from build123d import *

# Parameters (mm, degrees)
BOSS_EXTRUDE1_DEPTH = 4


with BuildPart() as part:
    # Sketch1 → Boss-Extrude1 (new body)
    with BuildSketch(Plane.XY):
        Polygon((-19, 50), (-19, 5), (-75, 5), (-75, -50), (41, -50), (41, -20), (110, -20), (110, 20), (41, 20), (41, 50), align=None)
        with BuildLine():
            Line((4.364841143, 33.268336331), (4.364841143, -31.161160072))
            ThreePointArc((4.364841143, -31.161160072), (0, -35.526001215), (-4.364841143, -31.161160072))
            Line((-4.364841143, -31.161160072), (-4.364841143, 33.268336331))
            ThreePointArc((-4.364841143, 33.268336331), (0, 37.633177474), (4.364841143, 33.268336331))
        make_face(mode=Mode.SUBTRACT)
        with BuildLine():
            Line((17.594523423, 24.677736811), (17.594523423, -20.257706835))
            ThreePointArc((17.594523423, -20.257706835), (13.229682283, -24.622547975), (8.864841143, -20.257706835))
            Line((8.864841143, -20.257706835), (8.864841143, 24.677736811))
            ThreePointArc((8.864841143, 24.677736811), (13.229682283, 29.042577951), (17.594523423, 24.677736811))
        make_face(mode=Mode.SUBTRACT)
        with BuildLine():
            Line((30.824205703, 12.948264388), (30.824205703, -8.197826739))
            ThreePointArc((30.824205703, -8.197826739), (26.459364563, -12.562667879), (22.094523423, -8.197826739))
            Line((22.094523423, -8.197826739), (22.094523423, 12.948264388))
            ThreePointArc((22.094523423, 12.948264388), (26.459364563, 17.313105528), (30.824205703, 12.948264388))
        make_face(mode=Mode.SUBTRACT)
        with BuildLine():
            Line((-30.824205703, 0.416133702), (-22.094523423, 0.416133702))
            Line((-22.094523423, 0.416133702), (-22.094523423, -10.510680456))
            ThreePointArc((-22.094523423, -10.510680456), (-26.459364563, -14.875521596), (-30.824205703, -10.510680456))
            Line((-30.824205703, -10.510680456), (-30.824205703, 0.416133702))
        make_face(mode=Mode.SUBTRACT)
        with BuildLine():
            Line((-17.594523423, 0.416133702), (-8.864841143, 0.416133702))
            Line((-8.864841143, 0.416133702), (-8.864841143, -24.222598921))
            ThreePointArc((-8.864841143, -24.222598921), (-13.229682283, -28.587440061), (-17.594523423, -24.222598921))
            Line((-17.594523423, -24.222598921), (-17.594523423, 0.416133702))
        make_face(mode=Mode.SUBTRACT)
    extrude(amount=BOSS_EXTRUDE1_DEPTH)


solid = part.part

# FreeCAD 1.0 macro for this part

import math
import FreeCAD as App
import Part
import Sketcher
from FreeCAD import Vector


def add_polygon(sketch, points):
    """Adds a closed chain of lines whose ends are joined by coincident constraints."""
    first, n = sketch.GeometryCount, len(points)
    for a, b in zip(points, points[1:] + points[:1]):
        sketch.addGeometry(Part.LineSegment(App.Vector(*a, 0), App.Vector(*b, 0)), False)
    for i in range(n):
        sketch.addConstraint(Sketcher.Constraint("Coincident", first + i, 2, first + (i + 1) % n, 1))

doc = App.newDocument("Part")
params = doc.addObject("Spreadsheet::Sheet", "Params")
for row, (alias, value) in enumerate([
    ("sketch1_width", "56 mm"),
    ("sketch1_width2", "116 mm"),
    ("sketch1_width3", "69 mm"),
    ("sketch1_height", "45 mm"),
    ("sketch1_height2", "55 mm"),
    ("pad1_length", "4 mm"),
], start=1):
    params.set(f"A{row}", alias)
    params.set(f"B{row}", "=" + value)
    params.setAlias(f"B{row}", alias)

body = doc.addObject("PartDesign::Body", "Body")

# Sketch on XY plane
sketch1 = doc.addObject("Sketcher::SketchObject", "Sketch")
body.addObject(sketch1)
sketch1.AttachmentSupport = (doc.XY_Plane, [""])
sketch1.MapMode = "FlatFace"
add_polygon(sketch1, [(-19, 50), (-19, 5), (-75, 5), (-75, -50), (41, -50), (41, -20), (110, -20), (110, 20), (41, 20), (41, 50)])  # lines 0-9
sketch1.addGeometry(Part.LineSegment(Vector(-30.8, -10.5, 0), Vector(-30.8, 0.4, 0)), False)  # 10
sketch1.addGeometry(Part.LineSegment(Vector(-30.8, 0.4, 0), Vector(-22.1, 0.4, 0)), False)  # 11
sketch1.addGeometry(Part.LineSegment(Vector(-22.1, 0.4, 0), Vector(-22.1, -10.5, 0)), False)  # 12
sketch1.addGeometry(Part.ArcOfCircle(Part.Circle(Vector(-26.5, -10.5, 0), Vector(0, 0, 1), 4.4), math.radians(180), math.radians(360)), False)  # 13
sketch1.addGeometry(Part.LineSegment(Vector(-17.6, -24.2, 0), Vector(-17.6, 0.4, 0)), False)  # 14
sketch1.addGeometry(Part.LineSegment(Vector(-17.6, 0.4, 0), Vector(-8.9, 0.4, 0)), False)  # 15
sketch1.addGeometry(Part.LineSegment(Vector(-8.9, 0.4, 0), Vector(-8.9, -24.2, 0)), False)  # 16
sketch1.addGeometry(Part.ArcOfCircle(Part.Circle(Vector(-13.2, -24.2, 0), Vector(0, 0, 1), 4.4), math.radians(180), math.radians(360)), False)  # 17
sketch1.addGeometry(Part.ArcOfCircle(Part.Circle(Vector(0, 33.3, 0), Vector(0, 0, 1), 4.4), math.radians(0), math.radians(180)), False)  # 18
sketch1.addGeometry(Part.LineSegment(Vector(4.4, 33.3, 0), Vector(4.4, -31.2, 0)), False)  # 19
sketch1.addGeometry(Part.ArcOfCircle(Part.Circle(Vector(0, -31.2, 0), Vector(0, 0, 1), 4.4), math.radians(180), math.radians(360)), False)  # 20
sketch1.addGeometry(Part.LineSegment(Vector(-4.4, -31.2, 0), Vector(-4.4, 33.3, 0)), False)  # 21
sketch1.addGeometry(Part.ArcOfCircle(Part.Circle(Vector(13.2, 24.7, 0), Vector(0, 0, 1), 4.4), math.radians(0), math.radians(180)), False)  # 22
sketch1.addGeometry(Part.LineSegment(Vector(17.6, 24.7, 0), Vector(17.6, -20.3, 0)), False)  # 23
sketch1.addGeometry(Part.ArcOfCircle(Part.Circle(Vector(13.2, -20.3, 0), Vector(0, 0, 1), 4.4), math.radians(180), math.radians(360)), False)  # 24
sketch1.addGeometry(Part.LineSegment(Vector(8.9, -20.3, 0), Vector(8.9, 24.7, 0)), False)  # 25
sketch1.addGeometry(Part.ArcOfCircle(Part.Circle(Vector(26.5, 12.9, 0), Vector(0, 0, 1), 4.4), math.radians(0), math.radians(180)), False)  # 26
sketch1.addGeometry(Part.LineSegment(Vector(30.8, 12.9, 0), Vector(30.8, -8.2, 0)), False)  # 27
sketch1.addGeometry(Part.ArcOfCircle(Part.Circle(Vector(26.5, -8.2, 0), Vector(0, 0, 1), 4.4), math.radians(180), math.radians(360)), False)  # 28
sketch1.addGeometry(Part.LineSegment(Vector(22.1, -8.2, 0), Vector(22.1, 12.9, 0)), False)  # 29
sketch1.addConstraint(Sketcher.Constraint("Coincident", 10, 2, 11, 1))
sketch1.addConstraint(Sketcher.Constraint("Coincident", 11, 2, 12, 1))
sketch1.addConstraint(Sketcher.Constraint("Tangent", 12, 2, 13, 2))
sketch1.addConstraint(Sketcher.Constraint("Tangent", 13, 1, 10, 1))
sketch1.addConstraint(Sketcher.Constraint("Coincident", 14, 2, 15, 1))
sketch1.addConstraint(Sketcher.Constraint("Coincident", 15, 2, 16, 1))
sketch1.addConstraint(Sketcher.Constraint("Tangent", 16, 2, 17, 2))
sketch1.addConstraint(Sketcher.Constraint("Tangent", 17, 1, 14, 1))
sketch1.addConstraint(Sketcher.Constraint("Tangent", 18, 1, 19, 1))
sketch1.addConstraint(Sketcher.Constraint("Tangent", 19, 2, 20, 2))
sketch1.addConstraint(Sketcher.Constraint("Tangent", 20, 1, 21, 1))
sketch1.addConstraint(Sketcher.Constraint("Tangent", 21, 2, 18, 2))
sketch1.addConstraint(Sketcher.Constraint("Tangent", 22, 1, 23, 1))
sketch1.addConstraint(Sketcher.Constraint("Tangent", 23, 2, 24, 2))
sketch1.addConstraint(Sketcher.Constraint("Tangent", 24, 1, 25, 1))
sketch1.addConstraint(Sketcher.Constraint("Tangent", 25, 2, 22, 2))
sketch1.addConstraint(Sketcher.Constraint("Tangent", 26, 1, 27, 1))
sketch1.addConstraint(Sketcher.Constraint("Tangent", 27, 2, 28, 2))
sketch1.addConstraint(Sketcher.Constraint("Tangent", 28, 1, 29, 1))
sketch1.addConstraint(Sketcher.Constraint("Tangent", 29, 2, 26, 2))
sketch1.addConstraint(Sketcher.Constraint("Vertical", 0))
sketch1.addConstraint(Sketcher.Constraint("Horizontal", 1))
sketch1.addConstraint(Sketcher.Constraint("Vertical", 2))
sketch1.addConstraint(Sketcher.Constraint("Horizontal", 3))
sketch1.addConstraint(Sketcher.Constraint("Vertical", 4))
sketch1.addConstraint(Sketcher.Constraint("Horizontal", 5))
sketch1.addConstraint(Sketcher.Constraint("Vertical", 6))
sketch1.addConstraint(Sketcher.Constraint("Horizontal", 7))
sketch1.addConstraint(Sketcher.Constraint("Vertical", 8))
sketch1.addConstraint(Sketcher.Constraint("Horizontal", 9))
sketch1.addConstraint(Sketcher.Constraint("Vertical", 10))
sketch1.addConstraint(Sketcher.Constraint("Horizontal", 11))
sketch1.addConstraint(Sketcher.Constraint("Vertical", 12))
sketch1.addConstraint(Sketcher.Constraint("Vertical", 14))
sketch1.addConstraint(Sketcher.Constraint("Horizontal", 15))
sketch1.addConstraint(Sketcher.Constraint("Vertical", 16))
sketch1.addConstraint(Sketcher.Constraint("Vertical", 19))
sketch1.addConstraint(Sketcher.Constraint("Vertical", 21))
sketch1.addConstraint(Sketcher.Constraint("Vertical", 23))
sketch1.addConstraint(Sketcher.Constraint("Vertical", 25))
sketch1.addConstraint(Sketcher.Constraint("Vertical", 27))
sketch1.addConstraint(Sketcher.Constraint("Vertical", 29))
sketch1.addConstraint(Sketcher.Constraint("Equal", 13, 17))
sketch1.addConstraint(Sketcher.Constraint("Equal", 17, 18))
sketch1.addConstraint(Sketcher.Constraint("Equal", 20, 22))
sketch1.addConstraint(Sketcher.Constraint("Equal", 24, 26))
sketch1.addConstraint(Sketcher.Constraint("Symmetric", 4, 2, 7, 2, -1))
sketch1.addConstraint(Sketcher.Constraint("PointOnObject", 18, 3, -2))
sketch1.addConstraint(Sketcher.Constraint("Horizontal", 11, 2, 14, 2))
sketch1.addConstraint(Sketcher.Constraint("Equal", 4, 8))
sketch1.addConstraint(Sketcher.Constraint("DistanceX", 1, 2, 1, 1, 56.0))
sketch1.addConstraint(Sketcher.Constraint("DistanceX", 3, 1, 3, 2, 116.0))
sketch1.addConstraint(Sketcher.Constraint("DistanceX", 5, 1, 5, 2, 69.0))
sketch1.addConstraint(Sketcher.Constraint("DistanceY", 0, 2, 0, 1, 45.0))
sketch1.addConstraint(Sketcher.Constraint("DistanceY", 2, 2, 2, 1, 55.0))
sketch1.addConstraint(Sketcher.Constraint("DistanceY", 4, 1, 4, 2, 30.0))
sketch1.addConstraint(Sketcher.Constraint("DistanceX", 0, 2, -1, 1, 19.0))
sketch1.addConstraint(Sketcher.Constraint("DistanceX", 11, 2, 14, 2, 4.5))
sketch1.addConstraint(Sketcher.Constraint("DistanceX", 16, 2, 20, 1, 4.5))
sketch1.addConstraint(Sketcher.Constraint("DistanceX", 19, 2, 24, 1, 4.5))
sketch1.addConstraint(Sketcher.Constraint("DistanceX", 23, 2, 28, 1, 4.5))
sketch1.addConstraint(Sketcher.Constraint("Radius", 13, 4.364841))
sketch1.addConstraint(Sketcher.Constraint("DistanceY", 27, 2, 27, 1, 21.146091))
sketch1.addConstraint(Sketcher.Constraint("DistanceY", 17, 3, -1, 1, 24.222599))
sketch1.addConstraint(Sketcher.Constraint("DistanceY", 22, 3, 18, 3, 8.5906))
sketch1.addConstraint(Sketcher.Constraint("DistanceY", 10, 1, 10, 2, 10.926814))
sketch1.addConstraint(Sketcher.Constraint("DistanceY", 14, 1, 14, 2, 24.638733))
sketch1.addConstraint(Sketcher.Constraint("DistanceY", 19, 2, 19, 1, 64.429496))
sketch1.addConstraint(Sketcher.Constraint("DistanceY", 23, 2, 23, 1, 44.935444))
sketch1.addConstraint(Sketcher.Constraint("DistanceY", 20, 3, -1, 1, 31.16116))
sketch1.addConstraint(Sketcher.Constraint("DistanceY", 26, 3, 18, 3, 20.320072))
sketch1.setExpression("Constraints[60]", "Params.sketch1_width")
sketch1.setExpression("Constraints[61]", "Params.sketch1_width2")
sketch1.setExpression("Constraints[62]", "Params.sketch1_width3")
sketch1.setExpression("Constraints[63]", "Params.sketch1_height")
sketch1.setExpression("Constraints[64]", "Params.sketch1_height2")
pad1 = doc.addObject("PartDesign::Pad", "Pad")
body.addObject(pad1)
pad1.Profile = sketch1
pad1.setExpression("Length", "Params.pad1_length")

doc.recompute()
